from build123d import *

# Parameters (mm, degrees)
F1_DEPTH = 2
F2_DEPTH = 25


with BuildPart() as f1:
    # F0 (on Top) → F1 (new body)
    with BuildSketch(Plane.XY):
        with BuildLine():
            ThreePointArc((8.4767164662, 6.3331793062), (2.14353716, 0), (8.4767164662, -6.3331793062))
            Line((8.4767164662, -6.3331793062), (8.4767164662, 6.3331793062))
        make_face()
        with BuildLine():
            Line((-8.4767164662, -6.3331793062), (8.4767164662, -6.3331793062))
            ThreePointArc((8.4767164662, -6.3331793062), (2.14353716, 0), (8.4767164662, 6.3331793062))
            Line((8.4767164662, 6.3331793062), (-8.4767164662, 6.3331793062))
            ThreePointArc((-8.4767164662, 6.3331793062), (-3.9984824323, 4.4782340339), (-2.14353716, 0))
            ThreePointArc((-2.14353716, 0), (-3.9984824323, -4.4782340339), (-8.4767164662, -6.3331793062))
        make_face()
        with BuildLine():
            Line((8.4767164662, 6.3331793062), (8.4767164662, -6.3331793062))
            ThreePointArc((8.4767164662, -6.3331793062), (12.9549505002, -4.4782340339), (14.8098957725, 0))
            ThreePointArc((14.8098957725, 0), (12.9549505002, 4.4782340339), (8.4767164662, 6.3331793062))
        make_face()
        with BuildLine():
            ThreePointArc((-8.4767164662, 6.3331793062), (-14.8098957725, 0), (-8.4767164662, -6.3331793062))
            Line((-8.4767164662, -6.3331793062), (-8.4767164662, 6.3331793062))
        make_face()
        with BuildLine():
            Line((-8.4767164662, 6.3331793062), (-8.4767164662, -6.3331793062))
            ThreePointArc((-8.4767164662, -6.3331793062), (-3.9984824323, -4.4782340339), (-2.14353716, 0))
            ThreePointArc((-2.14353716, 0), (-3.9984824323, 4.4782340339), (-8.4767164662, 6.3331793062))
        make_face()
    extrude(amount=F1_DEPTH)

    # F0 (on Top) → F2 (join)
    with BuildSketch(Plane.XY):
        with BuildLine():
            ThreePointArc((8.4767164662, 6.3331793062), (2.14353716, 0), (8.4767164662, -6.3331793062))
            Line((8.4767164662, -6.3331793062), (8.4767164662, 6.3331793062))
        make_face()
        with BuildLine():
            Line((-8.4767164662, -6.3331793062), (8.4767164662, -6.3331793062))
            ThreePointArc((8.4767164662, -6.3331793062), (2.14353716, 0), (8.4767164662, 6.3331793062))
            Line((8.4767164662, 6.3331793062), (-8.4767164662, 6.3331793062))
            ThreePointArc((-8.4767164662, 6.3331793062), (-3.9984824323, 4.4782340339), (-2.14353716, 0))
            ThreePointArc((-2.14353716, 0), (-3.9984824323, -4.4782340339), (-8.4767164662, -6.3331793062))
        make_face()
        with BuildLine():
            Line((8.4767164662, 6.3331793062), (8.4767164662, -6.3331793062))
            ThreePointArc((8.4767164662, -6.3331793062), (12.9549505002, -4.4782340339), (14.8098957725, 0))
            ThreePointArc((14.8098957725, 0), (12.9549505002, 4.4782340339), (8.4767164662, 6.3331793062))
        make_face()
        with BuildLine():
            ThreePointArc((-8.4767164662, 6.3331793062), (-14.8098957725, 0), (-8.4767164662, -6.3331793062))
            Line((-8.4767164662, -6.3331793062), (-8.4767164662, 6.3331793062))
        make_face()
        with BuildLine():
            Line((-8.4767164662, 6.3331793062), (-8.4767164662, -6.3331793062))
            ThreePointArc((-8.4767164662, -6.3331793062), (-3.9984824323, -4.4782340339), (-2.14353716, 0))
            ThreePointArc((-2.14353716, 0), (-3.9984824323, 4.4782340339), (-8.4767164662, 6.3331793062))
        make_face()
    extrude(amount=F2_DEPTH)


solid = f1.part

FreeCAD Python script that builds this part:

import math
import FreeCAD as App
import Part
import Sketcher

doc = App.newDocument("Part")
body = doc.addObject("PartDesign::Body", "Body")

sketch1 = doc.addObject("Sketcher::SketchObject", "Sketch")
body.addObject(sketch1)
sketch1.AttachmentSupport = (doc.XY_Plane, [""])
sketch1.MapMode = "FlatFace"
sketch1.addGeometry(Part.LineSegment(App.Vector(8, 6, 0), App.Vector(-8, 6, 0)), False)
sketch1.addGeometry(Part.ArcOfCircle(Part.Circle(App.Vector(-8, 0, 0), App.Vector(0, 0, 1), 6), math.radians(90), math.radians(270)), False)
sketch1.addGeometry(Part.LineSegment(App.Vector(-8, -6, 0), App.Vector(8, -6, 0)), False)
sketch1.addGeometry(Part.ArcOfCircle(Part.Circle(App.Vector(8, 0, 0), App.Vector(0, 0, 1), 6), math.radians(-90), math.radians(0)), False)
sketch1.addGeometry(Part.ArcOfCircle(Part.Circle(App.Vector(8, 0, 0), App.Vector(0, 0, 1), 6), math.radians(0), math.radians(90)), False)
sketch1.addConstraint(Sketcher.Constraint("Tangent", 0, 2, 1, 1))
sketch1.addConstraint(Sketcher.Constraint("Tangent", 1, 2, 2, 1))
sketch1.addConstraint(Sketcher.Constraint("Tangent", 2, 2, 3, 1))
sketch1.addConstraint(Sketcher.Constraint("Tangent", 3, 2, 4, 1))
sketch1.addConstraint(Sketcher.Constraint("Tangent", 4, 2, 0, 1))
sketch1.addConstraint(Sketcher.Constraint("Horizontal", 0))
sketch1.addConstraint(Sketcher.Constraint("Horizontal", 2))
sketch1.addConstraint(Sketcher.Constraint("Equal", 1, 3))
sketch1.addConstraint(Sketcher.Constraint("Symmetric", 1, 3, 3, 3, -1, 1))
sketch1.addConstraint(Sketcher.Constraint("PointOnObject", 3, 2, -1))
sketch1.addConstraint(Sketcher.Constraint("Radius", 1, 6.333179))
sketch1.addConstraint(Sketcher.Constraint("DistanceX", 0, 2, 0, 1, 16.953433))
pad1 = doc.addObject("PartDesign::Pad", "Pad")
body.addObject(pad1)
pad1.Profile = sketch1
pad1.Length = 2

sketch2 = doc.addObject("Sketcher::SketchObject", "Sketch001")
body.addObject(sketch2)
sketch2.AttachmentSupport = (doc.XY_Plane, [""])
sketch2.MapMode = "FlatFace"
sketch2.addGeometry(Part.LineSegment(App.Vector(8, 6, 0), App.Vector(-8, 6, 0)), False)
sketch2.addGeometry(Part.ArcOfCircle(Part.Circle(App.Vector(-8, 0, 0), App.Vector(0, 0, 1), 6), math.radians(90), math.radians(270)), False)
sketch2.addGeometry(Part.LineSegment(App.Vector(-8, -6, 0), App.Vector(8, -6, 0)), False)
sketch2.addGeometry(Part.ArcOfCircle(Part.Circle(App.Vector(8, 0, 0), App.Vector(0, 0, 1), 6), math.radians(-90), math.radians(0)), False)
sketch2.addGeometry(Part.ArcOfCircle(Part.Circle(App.Vector(8, 0, 0), App.Vector(0, 0, 1), 6), math.radians(0), math.radians(90)), False)
sketch2.addConstraint(Sketcher.Constraint("Tangent", 0, 2, 1, 1))
sketch2.addConstraint(Sketcher.Constraint("Tangent", 1, 2, 2, 1))
sketch2.addConstraint(Sketcher.Constraint("Tangent", 2, 2, 3, 1))
sketch2.addConstraint(Sketcher.Constraint("Tangent", 3, 2, 4, 1))
sketch2.addConstraint(Sketcher.Constraint("Tangent", 4, 2, 0, 1))
sketch2.addConstraint(Sketcher.Constraint("Horizontal", 0))
sketch2.addConstraint(Sketcher.Constraint("Horizontal", 2))
sketch2.addConstraint(Sketcher.Constraint("Equal", 1, 3))
sketch2.addConstraint(Sketcher.Constraint("Symmetric", 1, 3, 3, 3, -1, 1))
sketch2.addConstraint(Sketcher.Constraint("PointOnObject", 3, 2, -1))
sketch2.addConstraint(Sketcher.Constraint("Radius", 1, 6.333179))
sketch2.addConstraint(Sketcher.Constraint("DistanceX", 0, 2, 0, 1, 16.953433))
pad2 = doc.addObject("PartDesign::Pad", "Pad001")
body.addObject(pad2)
pad2.Profile = sketch2
pad2.Length = 25

doc.recompute()
